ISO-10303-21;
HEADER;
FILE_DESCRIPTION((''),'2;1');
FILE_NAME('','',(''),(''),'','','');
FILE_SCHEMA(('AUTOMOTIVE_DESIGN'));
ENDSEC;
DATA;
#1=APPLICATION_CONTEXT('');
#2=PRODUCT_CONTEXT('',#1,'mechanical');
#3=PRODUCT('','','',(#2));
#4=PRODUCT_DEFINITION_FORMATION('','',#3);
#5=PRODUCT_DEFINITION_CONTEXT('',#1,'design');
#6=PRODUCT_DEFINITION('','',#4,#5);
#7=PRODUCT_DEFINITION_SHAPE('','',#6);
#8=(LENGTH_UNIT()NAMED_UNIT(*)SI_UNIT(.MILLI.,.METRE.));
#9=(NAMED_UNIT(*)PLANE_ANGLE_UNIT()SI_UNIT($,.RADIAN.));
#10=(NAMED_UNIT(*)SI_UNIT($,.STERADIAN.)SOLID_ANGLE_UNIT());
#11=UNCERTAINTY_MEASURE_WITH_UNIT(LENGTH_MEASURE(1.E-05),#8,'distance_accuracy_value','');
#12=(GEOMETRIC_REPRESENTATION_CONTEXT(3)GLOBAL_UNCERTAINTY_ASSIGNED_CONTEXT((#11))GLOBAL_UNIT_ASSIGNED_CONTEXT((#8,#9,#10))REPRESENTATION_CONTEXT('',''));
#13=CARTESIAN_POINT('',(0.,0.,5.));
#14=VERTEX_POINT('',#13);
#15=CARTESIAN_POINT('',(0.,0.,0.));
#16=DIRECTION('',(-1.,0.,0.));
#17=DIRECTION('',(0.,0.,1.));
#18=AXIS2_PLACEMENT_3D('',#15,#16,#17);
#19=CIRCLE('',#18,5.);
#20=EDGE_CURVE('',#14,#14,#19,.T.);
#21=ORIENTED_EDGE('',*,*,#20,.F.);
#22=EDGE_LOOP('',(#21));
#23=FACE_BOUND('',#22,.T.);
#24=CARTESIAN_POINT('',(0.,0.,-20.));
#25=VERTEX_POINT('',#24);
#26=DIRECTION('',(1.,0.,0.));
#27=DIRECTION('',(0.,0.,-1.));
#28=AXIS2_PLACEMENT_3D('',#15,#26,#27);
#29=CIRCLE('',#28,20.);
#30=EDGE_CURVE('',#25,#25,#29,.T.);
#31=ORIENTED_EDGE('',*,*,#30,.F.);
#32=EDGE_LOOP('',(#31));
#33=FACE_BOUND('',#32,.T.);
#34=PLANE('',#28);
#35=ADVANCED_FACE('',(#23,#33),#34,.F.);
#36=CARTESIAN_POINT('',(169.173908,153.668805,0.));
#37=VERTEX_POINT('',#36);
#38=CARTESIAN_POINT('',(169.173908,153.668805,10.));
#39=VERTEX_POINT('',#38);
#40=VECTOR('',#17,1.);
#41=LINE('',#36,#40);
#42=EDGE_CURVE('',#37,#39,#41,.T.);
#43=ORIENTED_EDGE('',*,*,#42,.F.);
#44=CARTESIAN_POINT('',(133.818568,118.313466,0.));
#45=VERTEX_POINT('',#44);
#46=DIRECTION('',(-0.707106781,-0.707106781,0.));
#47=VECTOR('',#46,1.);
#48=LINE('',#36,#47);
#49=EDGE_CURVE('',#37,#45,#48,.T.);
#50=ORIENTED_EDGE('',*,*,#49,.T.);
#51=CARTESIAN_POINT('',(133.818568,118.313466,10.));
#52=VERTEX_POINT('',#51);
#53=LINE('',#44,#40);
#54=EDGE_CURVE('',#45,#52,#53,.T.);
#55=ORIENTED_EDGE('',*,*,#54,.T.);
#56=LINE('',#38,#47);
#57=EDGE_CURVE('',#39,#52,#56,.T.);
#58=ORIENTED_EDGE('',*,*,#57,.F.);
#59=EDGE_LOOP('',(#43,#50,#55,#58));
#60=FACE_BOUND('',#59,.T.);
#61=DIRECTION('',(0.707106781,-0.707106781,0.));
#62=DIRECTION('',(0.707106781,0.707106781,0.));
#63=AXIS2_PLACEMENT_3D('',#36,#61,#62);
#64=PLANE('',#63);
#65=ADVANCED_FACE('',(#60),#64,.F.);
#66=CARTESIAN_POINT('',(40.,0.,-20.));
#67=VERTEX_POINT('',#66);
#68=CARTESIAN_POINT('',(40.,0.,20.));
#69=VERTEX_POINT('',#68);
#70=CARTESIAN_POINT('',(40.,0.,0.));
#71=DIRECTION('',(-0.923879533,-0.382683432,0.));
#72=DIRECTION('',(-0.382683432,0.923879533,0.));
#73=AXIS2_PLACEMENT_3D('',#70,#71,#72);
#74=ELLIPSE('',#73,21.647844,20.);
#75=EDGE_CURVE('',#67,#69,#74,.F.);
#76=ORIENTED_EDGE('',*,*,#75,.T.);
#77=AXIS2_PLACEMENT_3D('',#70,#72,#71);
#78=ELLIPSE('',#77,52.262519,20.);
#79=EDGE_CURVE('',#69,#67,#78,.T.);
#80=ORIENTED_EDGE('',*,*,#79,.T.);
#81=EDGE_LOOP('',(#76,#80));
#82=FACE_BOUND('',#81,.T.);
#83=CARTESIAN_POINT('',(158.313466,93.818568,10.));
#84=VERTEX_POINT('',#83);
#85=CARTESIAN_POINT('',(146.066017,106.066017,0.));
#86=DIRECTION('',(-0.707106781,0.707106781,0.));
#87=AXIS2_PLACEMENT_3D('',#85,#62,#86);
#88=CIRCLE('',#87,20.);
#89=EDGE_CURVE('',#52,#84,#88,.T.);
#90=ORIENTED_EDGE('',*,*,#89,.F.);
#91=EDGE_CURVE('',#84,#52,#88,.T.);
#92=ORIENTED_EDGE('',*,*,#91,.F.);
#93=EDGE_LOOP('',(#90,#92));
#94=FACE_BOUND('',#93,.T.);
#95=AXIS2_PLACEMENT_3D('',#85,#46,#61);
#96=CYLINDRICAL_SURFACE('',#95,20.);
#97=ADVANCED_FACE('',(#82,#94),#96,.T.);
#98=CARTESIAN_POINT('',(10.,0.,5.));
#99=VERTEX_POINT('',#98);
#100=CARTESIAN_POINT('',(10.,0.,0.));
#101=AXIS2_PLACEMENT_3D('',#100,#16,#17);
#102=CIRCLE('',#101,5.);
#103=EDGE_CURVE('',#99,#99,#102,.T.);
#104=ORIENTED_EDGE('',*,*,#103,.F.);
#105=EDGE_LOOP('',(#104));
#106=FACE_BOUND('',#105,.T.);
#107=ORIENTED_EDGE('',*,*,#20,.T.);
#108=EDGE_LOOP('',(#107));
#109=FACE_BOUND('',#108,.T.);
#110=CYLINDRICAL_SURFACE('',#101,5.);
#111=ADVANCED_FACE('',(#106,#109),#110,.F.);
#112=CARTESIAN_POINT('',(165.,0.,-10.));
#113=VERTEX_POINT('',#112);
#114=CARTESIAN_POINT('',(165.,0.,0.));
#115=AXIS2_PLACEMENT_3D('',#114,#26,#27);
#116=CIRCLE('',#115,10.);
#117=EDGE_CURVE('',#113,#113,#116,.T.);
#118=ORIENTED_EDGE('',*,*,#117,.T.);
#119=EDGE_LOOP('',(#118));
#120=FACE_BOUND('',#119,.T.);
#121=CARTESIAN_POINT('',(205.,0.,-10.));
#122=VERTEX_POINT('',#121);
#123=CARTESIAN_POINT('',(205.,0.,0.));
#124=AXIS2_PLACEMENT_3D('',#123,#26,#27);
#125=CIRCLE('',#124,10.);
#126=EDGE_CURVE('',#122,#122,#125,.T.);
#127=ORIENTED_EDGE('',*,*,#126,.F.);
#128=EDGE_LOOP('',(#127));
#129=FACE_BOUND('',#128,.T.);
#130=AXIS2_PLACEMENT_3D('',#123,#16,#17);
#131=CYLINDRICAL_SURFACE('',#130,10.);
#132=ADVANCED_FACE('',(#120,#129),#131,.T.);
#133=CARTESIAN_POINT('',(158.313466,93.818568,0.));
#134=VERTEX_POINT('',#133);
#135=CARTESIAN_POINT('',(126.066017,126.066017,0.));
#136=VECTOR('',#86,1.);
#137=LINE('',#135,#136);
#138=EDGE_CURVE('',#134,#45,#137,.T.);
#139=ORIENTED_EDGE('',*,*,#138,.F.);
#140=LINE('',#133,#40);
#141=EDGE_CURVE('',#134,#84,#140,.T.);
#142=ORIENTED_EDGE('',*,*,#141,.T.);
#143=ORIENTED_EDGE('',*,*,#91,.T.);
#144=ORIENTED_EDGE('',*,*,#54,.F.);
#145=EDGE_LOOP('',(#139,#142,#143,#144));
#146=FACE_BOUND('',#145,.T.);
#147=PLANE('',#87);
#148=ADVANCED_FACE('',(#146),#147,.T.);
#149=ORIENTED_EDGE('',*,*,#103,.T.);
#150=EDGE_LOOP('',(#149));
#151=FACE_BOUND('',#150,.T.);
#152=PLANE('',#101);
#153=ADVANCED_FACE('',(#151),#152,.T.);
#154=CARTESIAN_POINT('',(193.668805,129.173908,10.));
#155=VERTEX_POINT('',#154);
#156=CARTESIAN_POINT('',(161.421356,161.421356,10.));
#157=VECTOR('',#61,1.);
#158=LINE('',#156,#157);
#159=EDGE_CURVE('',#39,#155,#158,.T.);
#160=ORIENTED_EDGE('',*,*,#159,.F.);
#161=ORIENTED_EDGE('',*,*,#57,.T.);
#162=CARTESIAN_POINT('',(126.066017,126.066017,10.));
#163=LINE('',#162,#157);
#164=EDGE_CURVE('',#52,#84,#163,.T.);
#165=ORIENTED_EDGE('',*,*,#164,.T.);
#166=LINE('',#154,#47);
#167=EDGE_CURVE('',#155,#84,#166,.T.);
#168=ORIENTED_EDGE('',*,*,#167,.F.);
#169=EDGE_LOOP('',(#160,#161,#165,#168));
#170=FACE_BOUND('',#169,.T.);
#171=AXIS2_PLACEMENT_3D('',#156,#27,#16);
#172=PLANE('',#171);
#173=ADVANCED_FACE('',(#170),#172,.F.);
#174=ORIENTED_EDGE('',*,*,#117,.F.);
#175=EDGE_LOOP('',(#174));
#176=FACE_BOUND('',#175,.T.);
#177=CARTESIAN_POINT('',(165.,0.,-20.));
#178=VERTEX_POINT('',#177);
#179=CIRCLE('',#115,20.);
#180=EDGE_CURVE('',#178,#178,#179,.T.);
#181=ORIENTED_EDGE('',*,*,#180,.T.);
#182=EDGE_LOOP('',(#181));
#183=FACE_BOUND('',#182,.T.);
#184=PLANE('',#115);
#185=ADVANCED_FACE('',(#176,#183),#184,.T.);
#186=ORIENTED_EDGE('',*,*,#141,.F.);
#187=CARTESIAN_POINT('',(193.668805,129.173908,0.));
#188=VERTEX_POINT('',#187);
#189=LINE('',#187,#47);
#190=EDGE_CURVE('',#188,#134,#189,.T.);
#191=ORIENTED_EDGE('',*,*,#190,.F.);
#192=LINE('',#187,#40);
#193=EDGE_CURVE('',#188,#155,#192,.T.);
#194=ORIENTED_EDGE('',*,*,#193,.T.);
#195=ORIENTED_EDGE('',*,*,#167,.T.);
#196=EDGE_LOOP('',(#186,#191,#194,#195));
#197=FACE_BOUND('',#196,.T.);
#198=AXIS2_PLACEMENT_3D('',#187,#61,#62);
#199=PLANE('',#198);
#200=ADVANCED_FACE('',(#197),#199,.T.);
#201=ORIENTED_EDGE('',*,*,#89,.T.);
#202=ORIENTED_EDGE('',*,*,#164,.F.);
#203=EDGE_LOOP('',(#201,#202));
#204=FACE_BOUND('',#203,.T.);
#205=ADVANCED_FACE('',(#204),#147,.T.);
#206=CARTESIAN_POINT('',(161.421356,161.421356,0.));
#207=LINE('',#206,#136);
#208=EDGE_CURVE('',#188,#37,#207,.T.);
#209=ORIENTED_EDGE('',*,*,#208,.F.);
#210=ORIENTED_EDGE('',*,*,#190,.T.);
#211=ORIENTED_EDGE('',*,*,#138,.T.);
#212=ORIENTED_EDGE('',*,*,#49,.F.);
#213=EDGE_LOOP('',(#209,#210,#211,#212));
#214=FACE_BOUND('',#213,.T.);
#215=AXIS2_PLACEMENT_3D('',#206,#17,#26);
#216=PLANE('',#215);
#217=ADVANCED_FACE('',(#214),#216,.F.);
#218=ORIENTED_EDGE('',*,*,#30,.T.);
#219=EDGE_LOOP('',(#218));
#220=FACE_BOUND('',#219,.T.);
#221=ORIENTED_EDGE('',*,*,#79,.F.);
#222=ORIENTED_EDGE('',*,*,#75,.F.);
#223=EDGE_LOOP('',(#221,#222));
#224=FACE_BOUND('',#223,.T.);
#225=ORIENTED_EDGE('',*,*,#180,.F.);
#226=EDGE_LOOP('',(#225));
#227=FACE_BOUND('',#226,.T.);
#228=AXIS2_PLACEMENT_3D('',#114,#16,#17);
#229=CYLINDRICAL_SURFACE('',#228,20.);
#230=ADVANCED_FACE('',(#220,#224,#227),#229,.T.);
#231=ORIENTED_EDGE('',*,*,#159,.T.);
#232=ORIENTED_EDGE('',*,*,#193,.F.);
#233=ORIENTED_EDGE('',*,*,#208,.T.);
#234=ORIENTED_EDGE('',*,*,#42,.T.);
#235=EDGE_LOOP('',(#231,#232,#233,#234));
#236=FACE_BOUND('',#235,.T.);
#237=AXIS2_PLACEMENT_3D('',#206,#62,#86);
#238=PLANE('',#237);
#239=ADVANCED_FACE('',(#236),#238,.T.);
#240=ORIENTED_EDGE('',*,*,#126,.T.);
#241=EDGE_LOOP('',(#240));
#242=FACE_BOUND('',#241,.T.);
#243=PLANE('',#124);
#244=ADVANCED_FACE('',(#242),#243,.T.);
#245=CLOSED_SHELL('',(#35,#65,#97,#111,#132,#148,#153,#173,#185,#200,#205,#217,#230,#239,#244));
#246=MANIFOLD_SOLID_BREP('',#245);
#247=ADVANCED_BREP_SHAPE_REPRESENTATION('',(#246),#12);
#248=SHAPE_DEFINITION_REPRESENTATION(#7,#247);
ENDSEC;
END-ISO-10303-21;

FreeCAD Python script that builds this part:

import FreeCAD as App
import Part
import Sketcher

V = App.Vector
Q = App.Units.Quantity


def add_polygon(sketch, points):
    """Adds a closed chain of lines whose ends are joined by coincident constraints."""
    first, n = sketch.GeometryCount, len(points)
    for a, b in zip(points, points[1:] + points[:1]):
        sketch.addGeometry(Part.LineSegment(App.Vector(*a, 0), App.Vector(*b, 0)), False)
    for i in range(n):
        sketch.addConstraint(Sketcher.Constraint("Coincident", first + i, 2, first + (i + 1) % n, 1))

doc = App.newDocument("Part")
body = doc.addObject("PartDesign::Body", "Body")

sketch1 = body.newObject("Sketcher::SketchObject", "Sketch")
sketch1.AttachmentSupport = (doc.getObject("YZ_Plane"), [""])
sketch1.MapMode = "FlatFace"
sketch1.addGeometry(Part.Circle(V(0, 0, 0), V(0, 0, 1), 20), False)
sketch1.addConstraint(Sketcher.Constraint("Coincident", 0, 3, -1, 1))
sketch1.addConstraint(Sketcher.Constraint("Diameter", 0, Q("40 mm")))
pad1 = body.newObject("PartDesign::Pad", "Pad")
pad1.Profile = sketch1
pad1.Length = 165

sketch2 = body.newObject("Sketcher::SketchObject", "Sketch001")
sketch2.AttachmentSupport = (doc.getObject("YZ_Plane"), [""])
sketch2.MapMode = "FlatFace"
sketch2.AttachmentOffset = App.Placement(V(0, 0, 165), App.Rotation())
sketch2.addGeometry(Part.Circle(V(0, 0, 0), V(0, 0, 1), 10), False)
sketch2.addConstraint(Sketcher.Constraint("Coincident", 0, 3, -1, 1))
sketch2.addConstraint(Sketcher.Constraint("Diameter", 0, Q("20 mm")))
pad2 = body.newObject("PartDesign::Pad", "Pad001")
pad2.Profile = sketch2
pad2.Length = 40

sketch3 = body.newObject("Sketcher::SketchObject", "Sketch002")
sketch3.Placement = App.Placement(V(20, 20, 0), App.Rotation(V(0.707106781, -0.707106781, 0), V(0, 0, -0.999999999), V(0.707106781, 0.707106781, 0), "ZXY"))
sketch3.addGeometry(Part.Circle(V(28.284271, 0, 0), V(0, 0, 1), 20), False)
sketch3.addConstraint(Sketcher.Constraint("PointOnObject", 0, 3, -1))
sketch3.addConstraint(Sketcher.Constraint("Diameter", 0, Q("40 mm")))
sketch3.addConstraint(Sketcher.Constraint("DistanceX", -1, 1, 0, 3, Q("28.284271 mm")))
pad3 = body.newObject("PartDesign::Pad", "Pad002")
pad3.Profile = sketch3
pad3.Length = 150

sketch4 = body.newObject("Sketcher::SketchObject", "Sketch003")
sketch4.Placement = App.Placement(V(126.066017, 126.066017, 0), App.Rotation(V(0, 0, -1), V(-0.707106781, 0.707106781, 0), V(0.707106781, 0.707106781, 0), "ZXY"))
add_polygon(sketch4, [(-10, -10.963763), (-10, -45.604779), (0, -45.604779), (0, -10.963763)])
sketch4.addConstraint(Sketcher.Constraint("Vertical", 0))
sketch4.addConstraint(Sketcher.Constraint("Horizontal", 1))
sketch4.addConstraint(Sketcher.Constraint("Vertical", 2))
sketch4.addConstraint(Sketcher.Constraint("Horizontal", 3))
sketch4.addConstraint(Sketcher.Constraint("PointOnObject", 1, 2, -2))
sketch4.addConstraint(Sketcher.Constraint("DistanceX", 1, 1, 1, 2, Q("10 mm")))
sketch4.addConstraint(Sketcher.Constraint("DistanceY", 0, 2, 0, 1, Q("34.641016 mm")))
sketch4.addConstraint(Sketcher.Constraint("DistanceY", 0, 2, -1, 1, Q("45.604779 mm")))
pad4 = body.newObject("PartDesign::Pad", "Pad003")
pad4.Profile = sketch4
pad4.Length = 50

sketch5 = body.newObject("Sketcher::SketchObject", "Sketch004")
sketch5.AttachmentSupport = (doc.getObject("YZ_Plane"), [""])
sketch5.MapMode = "FlatFace"
sketch5.addGeometry(Part.Circle(V(0, 0, 0), V(0, 0, 1), 5), False)
sketch5.addConstraint(Sketcher.Constraint("Coincident", 0, 3, -1, 1))
sketch5.addConstraint(Sketcher.Constraint("Diameter", 0, Q("10 mm")))
pocket1 = body.newObject("PartDesign::Pocket", "Pocket")
pocket1.Profile = sketch5
pocket1.Length = 10
pocket1.Reversed = True

doc.recompute()
